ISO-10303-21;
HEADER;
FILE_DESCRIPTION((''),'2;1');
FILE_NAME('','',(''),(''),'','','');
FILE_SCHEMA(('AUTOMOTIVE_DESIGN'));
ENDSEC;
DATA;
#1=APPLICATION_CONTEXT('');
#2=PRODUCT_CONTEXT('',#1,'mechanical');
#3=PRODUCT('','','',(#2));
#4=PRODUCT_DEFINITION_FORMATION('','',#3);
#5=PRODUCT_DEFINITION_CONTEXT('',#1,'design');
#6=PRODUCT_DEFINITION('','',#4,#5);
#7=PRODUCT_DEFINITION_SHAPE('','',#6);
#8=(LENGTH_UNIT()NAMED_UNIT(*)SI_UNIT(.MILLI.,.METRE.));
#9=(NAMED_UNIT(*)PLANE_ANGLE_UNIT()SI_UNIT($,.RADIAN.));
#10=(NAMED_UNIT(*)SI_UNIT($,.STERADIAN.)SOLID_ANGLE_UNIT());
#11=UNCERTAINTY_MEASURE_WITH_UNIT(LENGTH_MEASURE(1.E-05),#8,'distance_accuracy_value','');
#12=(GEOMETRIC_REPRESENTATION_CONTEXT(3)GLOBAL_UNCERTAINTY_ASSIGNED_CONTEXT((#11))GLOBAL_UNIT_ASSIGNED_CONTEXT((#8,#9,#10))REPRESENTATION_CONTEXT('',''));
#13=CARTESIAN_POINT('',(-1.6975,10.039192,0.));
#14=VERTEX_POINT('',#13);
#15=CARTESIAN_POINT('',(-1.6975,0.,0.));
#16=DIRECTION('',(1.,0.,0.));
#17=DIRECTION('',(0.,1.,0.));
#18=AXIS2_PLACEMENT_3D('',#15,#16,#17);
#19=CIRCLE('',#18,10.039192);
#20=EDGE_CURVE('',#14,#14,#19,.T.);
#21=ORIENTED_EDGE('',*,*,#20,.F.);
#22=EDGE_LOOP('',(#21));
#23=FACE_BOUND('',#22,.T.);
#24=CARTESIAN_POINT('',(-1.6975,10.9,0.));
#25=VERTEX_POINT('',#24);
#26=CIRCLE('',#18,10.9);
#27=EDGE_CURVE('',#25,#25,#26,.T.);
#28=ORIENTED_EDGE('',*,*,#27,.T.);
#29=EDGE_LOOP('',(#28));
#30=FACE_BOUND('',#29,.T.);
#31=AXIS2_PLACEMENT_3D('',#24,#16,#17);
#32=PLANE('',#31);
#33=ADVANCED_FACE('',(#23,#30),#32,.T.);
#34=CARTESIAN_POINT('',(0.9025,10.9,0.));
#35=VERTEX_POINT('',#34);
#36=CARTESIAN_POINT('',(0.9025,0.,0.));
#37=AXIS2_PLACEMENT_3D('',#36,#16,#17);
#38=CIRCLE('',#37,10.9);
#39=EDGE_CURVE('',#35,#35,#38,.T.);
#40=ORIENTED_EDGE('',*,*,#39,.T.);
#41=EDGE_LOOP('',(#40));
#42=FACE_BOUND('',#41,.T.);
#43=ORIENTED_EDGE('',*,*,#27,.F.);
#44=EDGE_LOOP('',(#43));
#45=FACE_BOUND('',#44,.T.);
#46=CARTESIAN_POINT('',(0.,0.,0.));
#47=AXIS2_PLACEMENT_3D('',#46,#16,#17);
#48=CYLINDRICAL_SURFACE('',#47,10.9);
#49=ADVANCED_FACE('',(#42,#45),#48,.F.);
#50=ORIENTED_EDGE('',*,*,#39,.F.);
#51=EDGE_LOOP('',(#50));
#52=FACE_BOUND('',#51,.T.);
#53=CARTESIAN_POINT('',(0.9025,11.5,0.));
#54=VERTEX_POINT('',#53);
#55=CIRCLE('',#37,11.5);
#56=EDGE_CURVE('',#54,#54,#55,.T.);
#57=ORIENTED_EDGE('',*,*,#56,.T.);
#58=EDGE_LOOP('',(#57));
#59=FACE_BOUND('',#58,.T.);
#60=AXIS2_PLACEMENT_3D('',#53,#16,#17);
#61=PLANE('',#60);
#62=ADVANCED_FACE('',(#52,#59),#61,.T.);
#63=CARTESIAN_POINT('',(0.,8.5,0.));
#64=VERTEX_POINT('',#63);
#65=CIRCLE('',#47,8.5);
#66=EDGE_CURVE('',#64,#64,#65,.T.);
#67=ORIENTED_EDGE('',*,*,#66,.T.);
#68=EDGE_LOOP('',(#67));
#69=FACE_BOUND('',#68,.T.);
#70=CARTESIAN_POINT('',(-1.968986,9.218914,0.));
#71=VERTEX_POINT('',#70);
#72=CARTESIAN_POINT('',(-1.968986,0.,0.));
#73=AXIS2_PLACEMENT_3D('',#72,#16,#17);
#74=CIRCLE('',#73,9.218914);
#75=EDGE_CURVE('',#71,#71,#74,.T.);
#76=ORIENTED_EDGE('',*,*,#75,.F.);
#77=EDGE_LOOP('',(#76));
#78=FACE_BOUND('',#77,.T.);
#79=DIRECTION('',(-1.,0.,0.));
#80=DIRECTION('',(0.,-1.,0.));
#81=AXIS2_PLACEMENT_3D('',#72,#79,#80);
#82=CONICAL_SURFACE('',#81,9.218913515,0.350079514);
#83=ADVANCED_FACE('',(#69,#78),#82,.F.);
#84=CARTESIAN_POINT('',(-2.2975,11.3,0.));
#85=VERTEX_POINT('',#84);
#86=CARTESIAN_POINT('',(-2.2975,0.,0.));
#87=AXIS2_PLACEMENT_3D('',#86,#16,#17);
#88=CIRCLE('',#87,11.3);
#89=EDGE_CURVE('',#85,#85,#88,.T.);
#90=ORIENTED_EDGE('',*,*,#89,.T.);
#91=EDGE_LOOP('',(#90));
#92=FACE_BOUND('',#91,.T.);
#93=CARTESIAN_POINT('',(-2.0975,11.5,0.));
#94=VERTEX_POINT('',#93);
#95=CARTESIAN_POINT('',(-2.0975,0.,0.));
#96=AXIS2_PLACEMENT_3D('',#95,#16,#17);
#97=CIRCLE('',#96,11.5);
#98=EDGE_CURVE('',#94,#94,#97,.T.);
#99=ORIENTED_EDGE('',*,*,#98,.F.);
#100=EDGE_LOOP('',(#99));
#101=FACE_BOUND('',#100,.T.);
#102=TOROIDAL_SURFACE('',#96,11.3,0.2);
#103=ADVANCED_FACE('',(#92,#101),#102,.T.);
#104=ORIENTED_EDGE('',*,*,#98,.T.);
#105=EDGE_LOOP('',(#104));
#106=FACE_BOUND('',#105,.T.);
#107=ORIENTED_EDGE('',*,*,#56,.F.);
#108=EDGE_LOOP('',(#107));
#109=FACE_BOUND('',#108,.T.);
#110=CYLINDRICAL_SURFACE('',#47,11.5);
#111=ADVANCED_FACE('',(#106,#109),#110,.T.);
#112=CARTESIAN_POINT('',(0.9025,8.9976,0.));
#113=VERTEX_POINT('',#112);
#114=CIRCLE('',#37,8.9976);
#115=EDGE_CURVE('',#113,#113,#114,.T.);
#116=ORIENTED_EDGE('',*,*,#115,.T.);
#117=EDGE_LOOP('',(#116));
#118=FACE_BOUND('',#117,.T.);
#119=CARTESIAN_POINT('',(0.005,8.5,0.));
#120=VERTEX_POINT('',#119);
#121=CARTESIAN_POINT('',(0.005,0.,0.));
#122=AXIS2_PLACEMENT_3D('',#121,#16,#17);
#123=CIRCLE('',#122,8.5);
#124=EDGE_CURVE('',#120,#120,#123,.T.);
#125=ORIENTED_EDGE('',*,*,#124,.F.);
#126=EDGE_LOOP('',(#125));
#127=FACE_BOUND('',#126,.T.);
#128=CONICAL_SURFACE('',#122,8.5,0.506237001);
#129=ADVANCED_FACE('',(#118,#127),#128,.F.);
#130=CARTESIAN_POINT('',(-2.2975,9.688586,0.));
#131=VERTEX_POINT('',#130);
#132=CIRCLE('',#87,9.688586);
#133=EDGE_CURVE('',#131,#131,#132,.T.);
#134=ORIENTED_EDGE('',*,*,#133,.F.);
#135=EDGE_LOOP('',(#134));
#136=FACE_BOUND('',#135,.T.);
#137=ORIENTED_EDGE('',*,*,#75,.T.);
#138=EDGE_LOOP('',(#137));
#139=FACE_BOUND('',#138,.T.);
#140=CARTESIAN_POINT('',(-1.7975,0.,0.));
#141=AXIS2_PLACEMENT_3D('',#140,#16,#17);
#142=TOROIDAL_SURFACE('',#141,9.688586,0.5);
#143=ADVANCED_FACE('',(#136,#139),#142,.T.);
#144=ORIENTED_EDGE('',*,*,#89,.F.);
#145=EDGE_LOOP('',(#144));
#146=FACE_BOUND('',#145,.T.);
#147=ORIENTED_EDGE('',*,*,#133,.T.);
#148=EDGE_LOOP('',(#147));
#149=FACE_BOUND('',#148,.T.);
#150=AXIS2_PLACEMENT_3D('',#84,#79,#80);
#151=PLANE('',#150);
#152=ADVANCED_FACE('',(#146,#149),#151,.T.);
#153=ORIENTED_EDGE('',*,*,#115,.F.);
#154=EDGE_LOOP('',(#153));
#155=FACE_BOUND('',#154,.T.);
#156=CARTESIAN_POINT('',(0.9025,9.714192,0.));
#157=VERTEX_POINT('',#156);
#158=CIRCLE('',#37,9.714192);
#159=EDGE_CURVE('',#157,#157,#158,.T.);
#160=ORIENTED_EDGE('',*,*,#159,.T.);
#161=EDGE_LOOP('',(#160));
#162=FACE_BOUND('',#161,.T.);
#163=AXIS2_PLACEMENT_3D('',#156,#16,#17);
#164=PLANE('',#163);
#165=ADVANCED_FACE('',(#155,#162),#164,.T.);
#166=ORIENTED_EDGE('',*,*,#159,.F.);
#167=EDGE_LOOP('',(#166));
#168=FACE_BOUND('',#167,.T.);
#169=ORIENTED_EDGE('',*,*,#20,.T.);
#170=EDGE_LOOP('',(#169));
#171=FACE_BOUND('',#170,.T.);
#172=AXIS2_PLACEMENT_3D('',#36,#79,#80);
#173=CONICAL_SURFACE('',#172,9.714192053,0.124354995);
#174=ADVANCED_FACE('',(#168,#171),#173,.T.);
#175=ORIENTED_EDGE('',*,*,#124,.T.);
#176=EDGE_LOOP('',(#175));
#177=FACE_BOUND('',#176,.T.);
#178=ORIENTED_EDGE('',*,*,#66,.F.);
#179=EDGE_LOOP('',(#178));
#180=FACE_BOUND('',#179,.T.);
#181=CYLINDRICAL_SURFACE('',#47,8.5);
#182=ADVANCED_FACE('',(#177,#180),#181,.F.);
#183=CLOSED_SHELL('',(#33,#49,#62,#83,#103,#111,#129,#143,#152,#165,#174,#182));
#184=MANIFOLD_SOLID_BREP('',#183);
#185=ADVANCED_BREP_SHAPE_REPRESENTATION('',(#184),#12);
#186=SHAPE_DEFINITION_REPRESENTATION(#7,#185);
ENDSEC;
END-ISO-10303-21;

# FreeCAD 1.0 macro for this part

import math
import FreeCAD as App
import Part
import Sketcher
from FreeCAD import Vector

doc = App.newDocument("Part")
body = doc.addObject("PartDesign::Body", "Body")

sketch1 = body.newObject("Sketcher::SketchObject", "Sketch")
sketch1.AttachmentSupport = (doc.getObject("XY_Plane"), [""])
sketch1.MapMode = "FlatFace"
sketch1.addGeometry([
    Part.LineSegment(Vector(0.9025, 8.9976, 0), Vector(0.9025, 9.714192, 0)),
    Part.LineSegment(Vector(0.9025, 9.714192, 0), Vector(-1.6975, 10.039192, 0)),
    Part.LineSegment(Vector(-1.6975, 10.039192, 0), Vector(-1.6975, 10.9, 0)),
    Part.LineSegment(Vector(-1.6975, 10.9, 0), Vector(0.9025, 10.9, 0)),
    Part.LineSegment(Vector(0.9025, 10.9, 0), Vector(0.9025, 11.5, 0)),
    Part.LineSegment(Vector(0.9025, 11.5, 0), Vector(-2.0975, 11.5, 0)),
    Part.ArcOfCircle(Part.Circle(Vector(-2.0975, 11.3, 0), Vector(0, 0, 1), 0.2), math.radians(90), math.radians(180)),
    Part.LineSegment(Vector(-2.2975, 11.3, 0), Vector(-2.2975, 9.688586, 0)),
    Part.ArcOfCircle(Part.Circle(Vector(-1.7975, 9.688586, 0), Vector(0, 0, 1), 0.5), math.radians(180), math.radians(249.941921)),
    Part.LineSegment(Vector(-1.968986, 9.218914, 0), Vector(0, 8.5, 0)),
    Part.LineSegment(Vector(0, 8.5, 0), Vector(0.005, 8.5, 0)),
    Part.LineSegment(Vector(0.005, 8.5, 0), Vector(0.9025, 8.9976, 0)),
], False)
sketch1.addConstraint([
    Sketcher.Constraint("Coincident", 0, 2, 1, 1),
    Sketcher.Constraint("Coincident", 1, 2, 2, 1),
    Sketcher.Constraint("Coincident", 2, 2, 3, 1),
    Sketcher.Constraint("Coincident", 3, 2, 4, 1),
    Sketcher.Constraint("Coincident", 4, 2, 5, 1),
    Sketcher.Constraint("Tangent", 5, 2, 6, 1),
    Sketcher.Constraint("Tangent", 6, 2, 7, 1),
    Sketcher.Constraint("Tangent", 7, 2, 8, 1),
    Sketcher.Constraint("Tangent", 8, 2, 9, 1),
    Sketcher.Constraint("Coincident", 9, 2, 10, 1),
    Sketcher.Constraint("Coincident", 10, 2, 11, 1),
    Sketcher.Constraint("Coincident", 11, 2, 0, 1),
    Sketcher.Constraint("Vertical", 0),
    Sketcher.Constraint("Vertical", 2),
    Sketcher.Constraint("Horizontal", 3),
    Sketcher.Constraint("Vertical", 4),
    Sketcher.Constraint("Horizontal", 5),
    Sketcher.Constraint("Vertical", 7),
    Sketcher.Constraint("Horizontal", 10),
    Sketcher.Constraint("PointOnObject", 9, 2, -2),
    Sketcher.Constraint("Vertical", 0, 2, 3, 2),
    Sketcher.Constraint("Radius", 6, 0.2),
    Sketcher.Constraint("Radius", 8, 0.5),
    Sketcher.Constraint("DistanceX", 5, 2, 5, 1, 3.0),
    Sketcher.Constraint("DistanceX", 3, 1, 3, 2, 2.6),
    Sketcher.Constraint("DistanceY", 4, 1, 4, 2, 0.6),
    Sketcher.Constraint("DistanceY", -1, 1, 6, 3, 11.3),
    Sketcher.Constraint("DistanceY", -1, 1, 9, 2, 8.5),
    Sketcher.Constraint("DistanceX", 10, 1, 10, 2, 0.005),
    Sketcher.Constraint("DistanceY", 0, 2, 1, 2, 0.325),
    Sketcher.Constraint("DistanceX", 6, 3, -1, 1, 2.0975),
    Sketcher.Constraint("DistanceY", -1, 1, 11, 2, 8.9976),
    Sketcher.Constraint("DistanceY", 0, 1, 0, 2, 0.716592),
    Sketcher.Constraint("DistanceY", 7, 2, 7, 1, 1.611414),
])
revolution = body.newObject("PartDesign::Revolution", "Revolution")
revolution.Profile = sketch1
revolution.ReferenceAxis = (sketch1, ["H_Axis"])
revolution.Angle = 360

doc.recompute()
